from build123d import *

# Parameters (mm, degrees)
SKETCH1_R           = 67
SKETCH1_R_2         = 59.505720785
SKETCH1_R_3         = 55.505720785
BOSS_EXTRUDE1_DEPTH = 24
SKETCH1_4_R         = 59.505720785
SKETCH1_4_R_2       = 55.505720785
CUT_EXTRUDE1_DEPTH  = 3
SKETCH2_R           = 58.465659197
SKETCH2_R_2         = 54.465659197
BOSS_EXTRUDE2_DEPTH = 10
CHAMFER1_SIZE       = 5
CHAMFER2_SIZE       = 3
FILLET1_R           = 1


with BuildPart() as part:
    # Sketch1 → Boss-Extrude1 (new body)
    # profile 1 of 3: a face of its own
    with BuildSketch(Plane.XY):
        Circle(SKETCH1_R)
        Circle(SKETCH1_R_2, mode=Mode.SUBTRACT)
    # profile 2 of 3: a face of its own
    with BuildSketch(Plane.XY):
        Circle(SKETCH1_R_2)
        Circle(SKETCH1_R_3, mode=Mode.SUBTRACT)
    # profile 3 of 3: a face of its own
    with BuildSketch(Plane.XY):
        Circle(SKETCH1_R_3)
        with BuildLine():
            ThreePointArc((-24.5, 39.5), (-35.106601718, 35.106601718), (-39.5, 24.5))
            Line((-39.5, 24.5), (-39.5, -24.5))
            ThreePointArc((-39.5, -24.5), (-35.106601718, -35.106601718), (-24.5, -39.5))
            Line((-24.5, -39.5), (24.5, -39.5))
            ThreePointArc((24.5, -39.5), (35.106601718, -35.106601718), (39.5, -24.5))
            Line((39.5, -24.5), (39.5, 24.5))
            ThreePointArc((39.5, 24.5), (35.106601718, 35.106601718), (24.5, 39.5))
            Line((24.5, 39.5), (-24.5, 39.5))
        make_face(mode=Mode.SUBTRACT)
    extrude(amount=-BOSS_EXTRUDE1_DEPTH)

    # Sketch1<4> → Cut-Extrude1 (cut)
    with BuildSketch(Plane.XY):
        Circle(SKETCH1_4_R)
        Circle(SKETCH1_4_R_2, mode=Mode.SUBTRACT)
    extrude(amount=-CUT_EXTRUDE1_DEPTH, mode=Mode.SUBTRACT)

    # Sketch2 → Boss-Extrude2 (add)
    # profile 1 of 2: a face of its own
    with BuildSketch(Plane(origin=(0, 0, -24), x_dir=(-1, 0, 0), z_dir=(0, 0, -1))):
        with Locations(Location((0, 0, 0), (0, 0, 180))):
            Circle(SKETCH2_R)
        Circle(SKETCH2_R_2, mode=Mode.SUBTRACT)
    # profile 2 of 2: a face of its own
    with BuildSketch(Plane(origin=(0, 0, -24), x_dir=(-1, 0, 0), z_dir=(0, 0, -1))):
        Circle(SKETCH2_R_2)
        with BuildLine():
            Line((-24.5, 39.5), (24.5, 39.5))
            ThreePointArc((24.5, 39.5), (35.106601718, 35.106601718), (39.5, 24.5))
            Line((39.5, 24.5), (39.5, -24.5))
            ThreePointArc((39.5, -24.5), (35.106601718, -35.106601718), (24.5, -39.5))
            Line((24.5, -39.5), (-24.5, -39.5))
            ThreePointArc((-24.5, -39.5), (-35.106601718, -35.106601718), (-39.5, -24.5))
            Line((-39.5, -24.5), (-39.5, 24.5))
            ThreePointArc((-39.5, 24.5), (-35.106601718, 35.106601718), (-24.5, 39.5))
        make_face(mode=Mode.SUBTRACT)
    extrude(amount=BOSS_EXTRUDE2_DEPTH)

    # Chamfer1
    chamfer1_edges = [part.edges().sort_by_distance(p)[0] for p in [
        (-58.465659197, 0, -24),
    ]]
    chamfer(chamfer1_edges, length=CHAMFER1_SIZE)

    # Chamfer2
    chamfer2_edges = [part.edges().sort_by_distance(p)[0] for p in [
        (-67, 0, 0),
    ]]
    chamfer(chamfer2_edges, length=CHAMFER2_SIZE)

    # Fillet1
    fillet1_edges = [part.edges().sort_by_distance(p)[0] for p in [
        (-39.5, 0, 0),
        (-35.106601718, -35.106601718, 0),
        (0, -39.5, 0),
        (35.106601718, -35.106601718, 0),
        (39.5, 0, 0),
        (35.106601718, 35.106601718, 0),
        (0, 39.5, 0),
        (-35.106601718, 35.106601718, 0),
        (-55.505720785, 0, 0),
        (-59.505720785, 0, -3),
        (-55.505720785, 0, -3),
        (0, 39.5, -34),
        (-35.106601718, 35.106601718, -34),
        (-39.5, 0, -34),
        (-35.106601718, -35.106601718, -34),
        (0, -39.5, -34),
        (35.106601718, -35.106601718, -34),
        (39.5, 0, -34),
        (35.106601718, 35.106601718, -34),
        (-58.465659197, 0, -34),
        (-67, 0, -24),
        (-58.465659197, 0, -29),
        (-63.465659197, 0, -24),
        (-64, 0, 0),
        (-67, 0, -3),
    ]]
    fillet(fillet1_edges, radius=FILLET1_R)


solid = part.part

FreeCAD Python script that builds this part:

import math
import FreeCAD as App
import Part
import Sketcher

V = App.Vector
Q = App.Units.Quantity


def edges_at(feature, points):
    """Names of the edges that pass closest to the given points."""
    edges = feature.Shape.Edges
    near = lambda p: min(range(len(edges)), key=lambda i: edges[i].distToShape(Part.Vertex(*p))[0])
    return sorted({f"Edge{near(p) + 1}" for p in points})

doc = App.newDocument("Part")
body = doc.addObject("PartDesign::Body", "Body")

sketch1 = body.newObject("Sketcher::SketchObject", "Sketch")
sketch1.AttachmentSupport = (doc.getObject("XY_Plane"), [""])
sketch1.MapMode = "FlatFace"
sketch1.addGeometry(Part.Circle(V(0, 0, 0), V(0, 0, 1), 67), False)
sketch1.addGeometry(Part.LineSegment(V(-24, 40, 0), V(24, 40, 0)), False)
sketch1.addGeometry(Part.ArcOfCircle(Part.Circle(V(25, 25, 0), V(0, 0, 1), 15), math.radians(0), math.radians(90)), False)
sketch1.addGeometry(Part.LineSegment(V(40, 24, 0), V(40, -24, 0)), False)
sketch1.addGeometry(Part.ArcOfCircle(Part.Circle(V(25, -25, 0), V(0, 0, 1), 15), math.radians(-90), math.radians(0)), False)
sketch1.addGeometry(Part.LineSegment(V(24, -40, 0), V(-24, -40, 0)), False)
sketch1.addGeometry(Part.ArcOfCircle(Part.Circle(V(-25, -25, 0), V(0, 0, 1), 15), math.radians(180), math.radians(270)), False)
sketch1.addGeometry(Part.LineSegment(V(-40, -24, 0), V(-40, 24, 0)), False)
sketch1.addGeometry(Part.ArcOfCircle(Part.Circle(V(-25, 25, 0), V(0, 0, 1), 15), math.radians(90), math.radians(180)), False)
sketch1.addConstraint(Sketcher.Constraint("Tangent", 1, 2, 2, 2))
sketch1.addConstraint(Sketcher.Constraint("Tangent", 2, 1, 3, 1))
sketch1.addConstraint(Sketcher.Constraint("Tangent", 3, 2, 4, 2))
sketch1.addConstraint(Sketcher.Constraint("Tangent", 4, 1, 5, 1))
sketch1.addConstraint(Sketcher.Constraint("Tangent", 5, 2, 6, 2))
sketch1.addConstraint(Sketcher.Constraint("Tangent", 6, 1, 7, 1))
sketch1.addConstraint(Sketcher.Constraint("Tangent", 7, 2, 8, 2))
sketch1.addConstraint(Sketcher.Constraint("Tangent", 8, 1, 1, 1))
sketch1.addConstraint(Sketcher.Constraint("Horizontal", 1))
sketch1.addConstraint(Sketcher.Constraint("Vertical", 3))
sketch1.addConstraint(Sketcher.Constraint("Horizontal", 5))
sketch1.addConstraint(Sketcher.Constraint("Vertical", 7))
sketch1.addConstraint(Sketcher.Constraint("Coincident", 0, 3, -1, 1))
sketch1.addConstraint(Sketcher.Constraint("Equal", 2, 4))
sketch1.addConstraint(Sketcher.Constraint("Equal", 4, 6))
sketch1.addConstraint(Sketcher.Constraint("Equal", 6, 8))
sketch1.addConstraint(Sketcher.Constraint("Symmetric", 2, 3, 6, 3, -1, 1))
sketch1.addConstraint(Sketcher.Constraint("Equal", 5, 3))
sketch1.addConstraint(Sketcher.Constraint("Diameter", 0, Q("134 mm")))
sketch1.addConstraint(Sketcher.Constraint("Radius", 2, Q("15 mm")))
sketch1.addConstraint(Sketcher.Constraint("DistanceX", 1, 1, 1, 2, Q("49 mm")))
pad1 = body.newObject("PartDesign::Pad", "Pad")
pad1.Profile = sketch1
pad1.Length = 24
pad1.Reversed = True

sketch2 = body.newObject("Sketcher::SketchObject", "Sketch001")
sketch2.AttachmentSupport = (doc.getObject("XY_Plane"), [""])
sketch2.MapMode = "FlatFace"
sketch2.addGeometry(Part.Circle(V(0, 0, 0), V(0, 0, 1), 60), False)
sketch2.addGeometry(Part.Circle(V(0, 0, 0), V(0, 0, 1), 56), False)
sketch2.addConstraint(Sketcher.Constraint("Coincident", 0, 3, -1, 1))
sketch2.addConstraint(Sketcher.Constraint("Coincident", 1, 3, -1, 1))
sketch2.addConstraint(Sketcher.Constraint("Diameter", 0, Q("119.011442 mm")))
sketch2.addConstraint(Sketcher.Constraint("Diameter", 1, Q("111.011442 mm")))
pocket1 = body.newObject("PartDesign::Pocket", "Pocket")
pocket1.Profile = sketch2
pocket1.Length = 3

sketch3 = body.newObject("Sketcher::SketchObject", "Sketch002")
sketch3.AttachmentSupport = (doc.getObject("XY_Plane"), [""])
sketch3.MapMode = "FlatFace"
sketch3.AttachmentOffset = App.Placement(V(0, 0, -24), App.Rotation())
sketch3.addGeometry(Part.Circle(V(0, 0, 0), V(0, 0, 1), 58), False)
sketch3.addGeometry(Part.LineSegment(V(24, 40, 0), V(-24, 40, 0)), False)
sketch3.addGeometry(Part.ArcOfCircle(Part.Circle(V(-25, 25, 0), V(0, 0, 1), 15), math.radians(90), math.radians(180)), False)
sketch3.addGeometry(Part.LineSegment(V(-40, 24, 0), V(-40, -24, 0)), False)
sketch3.addGeometry(Part.ArcOfCircle(Part.Circle(V(-25, -25, 0), V(0, 0, 1), 15), math.radians(180), math.radians(270)), False)
sketch3.addGeometry(Part.LineSegment(V(-24, -40, 0), V(24, -40, 0)), False)
sketch3.addGeometry(Part.ArcOfCircle(Part.Circle(V(25, -25, 0), V(0, 0, 1), 15), math.radians(-90), math.radians(0)), False)
sketch3.addGeometry(Part.LineSegment(V(40, -24, 0), V(40, 24, 0)), False)
sketch3.addGeometry(Part.ArcOfCircle(Part.Circle(V(25, 25, 0), V(0, 0, 1), 15), math.radians(0), math.radians(90)), False)
sketch3.addConstraint(Sketcher.Constraint("Tangent", 1, 2, 2, 1))
sketch3.addConstraint(Sketcher.Constraint("Tangent", 2, 2, 3, 1))
sketch3.addConstraint(Sketcher.Constraint("Tangent", 3, 2, 4, 1))
sketch3.addConstraint(Sketcher.Constraint("Tangent", 4, 2, 5, 1))
sketch3.addConstraint(Sketcher.Constraint("Tangent", 5, 2, 6, 1))
sketch3.addConstraint(Sketcher.Constraint("Tangent", 6, 2, 7, 1))
sketch3.addConstraint(Sketcher.Constraint("Tangent", 7, 2, 8, 1))
sketch3.addConstraint(Sketcher.Constraint("Tangent", 8, 2, 1, 1))
sketch3.addConstraint(Sketcher.Constraint("Horizontal", 1))
sketch3.addConstraint(Sketcher.Constraint("Vertical", 3))
sketch3.addConstraint(Sketcher.Constraint("Horizontal", 5))
sketch3.addConstraint(Sketcher.Constraint("Vertical", 7))
sketch3.addConstraint(Sketcher.Constraint("Coincident", 0, 3, -1, 1))
sketch3.addConstraint(Sketcher.Constraint("Equal", 2, 4))
sketch3.addConstraint(Sketcher.Constraint("Equal", 4, 6))
sketch3.addConstraint(Sketcher.Constraint("Equal", 6, 8))
sketch3.addConstraint(Sketcher.Constraint("Symmetric", 2, 3, 6, 3, -1, 1))
sketch3.addConstraint(Sketcher.Constraint("Equal", 5, 3))
sketch3.addConstraint(Sketcher.Constraint("Radius", 2, Q("15 mm")))
sketch3.addConstraint(Sketcher.Constraint("DistanceX", 1, 2, 1, 1, Q("49 mm")))
sketch3.addConstraint(Sketcher.Constraint("Diameter", 0, Q("116.931318 mm")))
pad2 = body.newObject("PartDesign::Pad", "Pad001")
pad2.Profile = sketch3
pad2.Length = 10
pad2.Reversed = True
doc.recompute()

chamfer = body.newObject("PartDesign::Chamfer", "Chamfer")
chamfer.Base = (pad2, edges_at(pad2, [(-58.466, 0, -24)]))
chamfer.Size = 5
doc.recompute()

chamfer2 = body.newObject("PartDesign::Chamfer", "Chamfer001")
chamfer2.Base = (chamfer, edges_at(chamfer, [(-67, 0, 0)]))
chamfer2.Size = 3
doc.recompute()

fillet = body.newObject("PartDesign::Fillet", "Fillet")
fillet.Base = (chamfer2, edges_at(chamfer2, [
    (-39.5, 0, 0),
    (-35.107, -35.107, 0),
    (0, -39.5, 0),
    (35.107, -35.107, 0),
    (39.5, 0, 0),
    (35.107, 35.107, 0),
    (0, 39.5, 0),
    (-35.107, 35.107, 0),
    (-55.506, 0, 0),
    (-59.506, 0, -3),
    (-55.506, 0, -3),
    (0, 39.5, -34),
    (-35.107, 35.107, -34),
    (-39.5, 0, -34),
    (-35.107, -35.107, -34),
    (0, -39.5, -34),
    (35.107, -35.107, -34),
    (39.5, 0, -34),
    (35.107, 35.107, -34),
    (-58.466, 0, -34),
    (-67, 0, -24),
    (-58.466, 0, -29),
    (-63.466, 0, -24),
    (-64, 0, 0),
    (-67, 0, -3),
]))
fillet.Radius = 1

doc.recompute()
